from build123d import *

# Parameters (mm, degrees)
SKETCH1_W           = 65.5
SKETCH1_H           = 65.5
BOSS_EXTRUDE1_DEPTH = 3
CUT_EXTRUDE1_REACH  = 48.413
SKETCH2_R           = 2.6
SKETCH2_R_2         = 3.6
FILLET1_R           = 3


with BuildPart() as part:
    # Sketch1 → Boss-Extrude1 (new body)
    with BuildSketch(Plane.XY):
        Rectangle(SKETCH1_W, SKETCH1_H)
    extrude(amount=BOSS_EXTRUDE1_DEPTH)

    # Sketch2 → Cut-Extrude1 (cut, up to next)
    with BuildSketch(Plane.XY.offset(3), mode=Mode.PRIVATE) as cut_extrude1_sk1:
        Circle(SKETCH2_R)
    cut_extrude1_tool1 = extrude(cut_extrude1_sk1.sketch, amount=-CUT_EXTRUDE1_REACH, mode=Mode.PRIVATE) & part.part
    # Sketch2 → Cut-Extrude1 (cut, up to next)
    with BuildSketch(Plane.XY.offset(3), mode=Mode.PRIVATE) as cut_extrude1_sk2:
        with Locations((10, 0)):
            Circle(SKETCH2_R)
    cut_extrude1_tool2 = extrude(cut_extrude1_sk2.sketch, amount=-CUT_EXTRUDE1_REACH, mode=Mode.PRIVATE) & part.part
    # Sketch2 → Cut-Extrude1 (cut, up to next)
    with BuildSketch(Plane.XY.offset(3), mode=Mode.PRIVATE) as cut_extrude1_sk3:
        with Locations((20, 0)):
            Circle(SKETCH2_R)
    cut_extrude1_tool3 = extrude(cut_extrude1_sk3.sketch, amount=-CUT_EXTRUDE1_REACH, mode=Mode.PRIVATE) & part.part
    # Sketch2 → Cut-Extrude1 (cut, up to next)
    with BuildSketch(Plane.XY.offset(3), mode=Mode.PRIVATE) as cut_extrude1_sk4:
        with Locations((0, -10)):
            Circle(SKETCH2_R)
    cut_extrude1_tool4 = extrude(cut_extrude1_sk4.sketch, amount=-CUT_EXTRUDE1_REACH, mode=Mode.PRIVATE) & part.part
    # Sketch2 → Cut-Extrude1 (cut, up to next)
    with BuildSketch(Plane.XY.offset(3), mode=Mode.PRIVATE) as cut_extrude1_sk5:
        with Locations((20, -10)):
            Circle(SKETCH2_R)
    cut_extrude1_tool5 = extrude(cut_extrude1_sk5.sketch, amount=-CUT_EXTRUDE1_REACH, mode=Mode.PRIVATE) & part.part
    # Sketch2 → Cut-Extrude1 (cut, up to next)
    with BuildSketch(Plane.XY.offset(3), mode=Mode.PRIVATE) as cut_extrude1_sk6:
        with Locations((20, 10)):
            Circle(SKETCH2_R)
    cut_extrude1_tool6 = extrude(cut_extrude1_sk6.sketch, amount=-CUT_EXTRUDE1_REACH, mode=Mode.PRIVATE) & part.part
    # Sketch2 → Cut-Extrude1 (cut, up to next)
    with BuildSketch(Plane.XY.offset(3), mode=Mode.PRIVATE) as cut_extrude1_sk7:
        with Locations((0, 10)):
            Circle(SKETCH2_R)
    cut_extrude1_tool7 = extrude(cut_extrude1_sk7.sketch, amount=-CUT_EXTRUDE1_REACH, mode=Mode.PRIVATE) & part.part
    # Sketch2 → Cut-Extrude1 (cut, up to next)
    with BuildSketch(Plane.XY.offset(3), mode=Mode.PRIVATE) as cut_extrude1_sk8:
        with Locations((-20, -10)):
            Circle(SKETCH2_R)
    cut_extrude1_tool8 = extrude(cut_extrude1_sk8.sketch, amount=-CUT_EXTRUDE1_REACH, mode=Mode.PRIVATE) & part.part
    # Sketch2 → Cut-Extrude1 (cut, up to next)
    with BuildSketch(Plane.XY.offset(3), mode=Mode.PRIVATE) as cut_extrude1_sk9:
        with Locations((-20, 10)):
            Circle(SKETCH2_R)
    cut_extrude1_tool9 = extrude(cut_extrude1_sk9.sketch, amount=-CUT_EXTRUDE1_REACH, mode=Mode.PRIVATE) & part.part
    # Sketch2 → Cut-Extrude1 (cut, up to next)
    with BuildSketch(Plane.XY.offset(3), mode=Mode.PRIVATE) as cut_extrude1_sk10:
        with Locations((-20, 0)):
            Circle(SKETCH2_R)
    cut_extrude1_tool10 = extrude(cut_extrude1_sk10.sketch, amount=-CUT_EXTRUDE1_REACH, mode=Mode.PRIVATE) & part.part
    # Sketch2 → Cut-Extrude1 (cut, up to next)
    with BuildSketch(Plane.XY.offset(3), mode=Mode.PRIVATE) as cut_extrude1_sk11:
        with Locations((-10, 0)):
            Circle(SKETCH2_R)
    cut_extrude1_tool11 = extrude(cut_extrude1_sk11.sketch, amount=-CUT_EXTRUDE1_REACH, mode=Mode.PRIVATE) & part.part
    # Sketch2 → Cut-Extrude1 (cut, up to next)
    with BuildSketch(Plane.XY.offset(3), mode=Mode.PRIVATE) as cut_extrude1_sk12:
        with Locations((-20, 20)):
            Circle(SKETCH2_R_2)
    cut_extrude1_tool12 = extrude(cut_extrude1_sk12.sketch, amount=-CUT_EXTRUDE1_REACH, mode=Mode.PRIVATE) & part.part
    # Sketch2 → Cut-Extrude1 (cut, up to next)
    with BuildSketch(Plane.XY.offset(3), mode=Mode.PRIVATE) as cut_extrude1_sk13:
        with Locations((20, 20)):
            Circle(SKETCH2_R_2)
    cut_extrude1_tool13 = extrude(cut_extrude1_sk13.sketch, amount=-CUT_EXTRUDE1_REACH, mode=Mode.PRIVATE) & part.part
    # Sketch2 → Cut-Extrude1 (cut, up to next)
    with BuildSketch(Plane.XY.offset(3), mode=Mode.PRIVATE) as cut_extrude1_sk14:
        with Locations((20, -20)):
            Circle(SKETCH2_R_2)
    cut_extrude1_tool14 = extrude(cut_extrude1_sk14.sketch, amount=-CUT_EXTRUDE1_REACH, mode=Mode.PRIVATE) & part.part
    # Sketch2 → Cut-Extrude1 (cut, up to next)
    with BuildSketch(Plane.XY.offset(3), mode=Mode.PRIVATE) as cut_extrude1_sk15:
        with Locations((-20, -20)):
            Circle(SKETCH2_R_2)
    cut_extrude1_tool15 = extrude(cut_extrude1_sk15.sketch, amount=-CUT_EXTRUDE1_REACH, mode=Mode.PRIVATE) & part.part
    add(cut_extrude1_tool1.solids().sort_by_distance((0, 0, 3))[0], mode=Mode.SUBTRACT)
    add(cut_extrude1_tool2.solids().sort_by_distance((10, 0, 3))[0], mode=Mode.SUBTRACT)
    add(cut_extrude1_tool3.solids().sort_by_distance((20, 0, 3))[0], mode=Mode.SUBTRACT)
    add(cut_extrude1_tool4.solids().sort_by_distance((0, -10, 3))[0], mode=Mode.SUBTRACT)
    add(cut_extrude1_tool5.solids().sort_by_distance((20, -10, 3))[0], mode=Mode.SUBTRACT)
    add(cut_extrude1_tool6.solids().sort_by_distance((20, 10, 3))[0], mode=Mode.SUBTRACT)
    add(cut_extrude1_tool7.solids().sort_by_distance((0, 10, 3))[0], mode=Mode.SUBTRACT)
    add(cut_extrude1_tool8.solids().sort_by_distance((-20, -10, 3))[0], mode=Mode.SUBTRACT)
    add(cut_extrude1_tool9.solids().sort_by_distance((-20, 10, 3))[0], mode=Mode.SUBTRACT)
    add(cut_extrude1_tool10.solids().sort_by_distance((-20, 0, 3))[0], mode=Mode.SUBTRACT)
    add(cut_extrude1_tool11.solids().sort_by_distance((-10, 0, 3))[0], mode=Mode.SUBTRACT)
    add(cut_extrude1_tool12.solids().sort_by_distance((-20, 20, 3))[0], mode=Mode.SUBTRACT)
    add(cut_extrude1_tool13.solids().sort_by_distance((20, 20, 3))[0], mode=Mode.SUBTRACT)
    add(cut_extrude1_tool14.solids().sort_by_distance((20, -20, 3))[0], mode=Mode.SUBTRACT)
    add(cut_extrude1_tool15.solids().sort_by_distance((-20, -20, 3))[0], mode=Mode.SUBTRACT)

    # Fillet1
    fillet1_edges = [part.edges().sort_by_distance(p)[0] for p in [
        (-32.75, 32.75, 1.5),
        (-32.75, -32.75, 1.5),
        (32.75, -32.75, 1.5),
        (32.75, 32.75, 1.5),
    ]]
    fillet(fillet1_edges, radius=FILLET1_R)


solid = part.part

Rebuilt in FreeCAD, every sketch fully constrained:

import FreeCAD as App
import Part
import Sketcher
from FreeCAD import Vector
Q = App.Units.Quantity


def edges_at(feature, points):
    """Names of the edges that pass closest to the given points."""
    edges = feature.Shape.Edges
    near = lambda p: min(range(len(edges)), key=lambda i: edges[i].distToShape(Part.Vertex(*p))[0])
    return sorted({f"Edge{near(p) + 1}" for p in points})


def add_polygon(sketch, points):
    """Adds a closed chain of lines whose ends are joined by coincident constraints."""
    first, n = sketch.GeometryCount, len(points)
    for a, b in zip(points, points[1:] + points[:1]):
        sketch.addGeometry(Part.LineSegment(App.Vector(*a, 0), App.Vector(*b, 0)), False)
    for i in range(n):
        sketch.addConstraint(Sketcher.Constraint("Coincident", first + i, 2, first + (i + 1) % n, 1))

doc = App.newDocument("Part")
body = doc.addObject("PartDesign::Body", "Body")

# Sketch on XY plane
sketch1 = body.newObject("Sketcher::SketchObject", "Sketch")
sketch1.AttachmentSupport = (doc.getObject("XY_Plane"), [""])
sketch1.MapMode = "FlatFace"
add_polygon(sketch1, [(-33, 33), (-33, -33), (33, -33), (33, 33)])  # lines 0-3
sketch1.addConstraint(Sketcher.Constraint("Vertical", 0))
sketch1.addConstraint(Sketcher.Constraint("Horizontal", 1))
sketch1.addConstraint(Sketcher.Constraint("Vertical", 2))
sketch1.addConstraint(Sketcher.Constraint("Horizontal", 3))
sketch1.addConstraint(Sketcher.Constraint("Symmetric", 0, 2, 2, 2, -1, 1))
sketch1.addConstraint(Sketcher.Constraint("Equal", 3, 0))
sketch1.addConstraint(Sketcher.Constraint("DistanceX", 1, 1, 1, 2, Q("65.5 mm")))
pad1 = body.newObject("PartDesign::Pad", "Pad")
pad1.Profile = sketch1
pad1.Length = 3

# Sketch on XY plane
sketch2 = body.newObject("Sketcher::SketchObject", "Sketch001")
sketch2.AttachmentSupport = (doc.getObject("XY_Plane"), [""])
sketch2.MapMode = "FlatFace"
sketch2.AttachmentOffset = App.Placement(Vector(0, 0, 3), App.Rotation())
sketch2.addGeometry(Part.Circle(Vector(0, 0, 0), Vector(0, 0, 1), 2.6), False)
sketch2.addConstraint(Sketcher.Constraint("Coincident", 0, 3, -1, 1))
sketch2.addConstraint(Sketcher.Constraint("Diameter", 0, Q("5.2 mm")))
pocket1 = body.newObject("PartDesign::Pocket", "Pocket")
pocket1.Profile = sketch2
pocket1.Type = "UpToFirst"

# Sketch on XY plane
sketch3 = body.newObject("Sketcher::SketchObject", "Sketch002")
sketch3.AttachmentSupport = (doc.getObject("XY_Plane"), [""])
sketch3.MapMode = "FlatFace"
sketch3.AttachmentOffset = App.Placement(Vector(0, 0, 3), App.Rotation())
sketch3.addGeometry(Part.Circle(Vector(10, 0, 0), Vector(0, 0, 1), 2.6), False)
sketch3.addConstraint(Sketcher.Constraint("PointOnObject", 0, 3, -1))
sketch3.addConstraint(Sketcher.Constraint("Diameter", 0, Q("5.2 mm")))
sketch3.addConstraint(Sketcher.Constraint("DistanceX", -1, 1, 0, 3, Q("10 mm")))
pocket2 = body.newObject("PartDesign::Pocket", "Pocket001")
pocket2.Profile = sketch3
pocket2.Type = "UpToFirst"

# Sketch on XY plane
sketch4 = body.newObject("Sketcher::SketchObject", "Sketch003")
sketch4.AttachmentSupport = (doc.getObject("XY_Plane"), [""])
sketch4.MapMode = "FlatFace"
sketch4.AttachmentOffset = App.Placement(Vector(0, 0, 3), App.Rotation())
sketch4.addGeometry(Part.Circle(Vector(20, 0, 0), Vector(0, 0, 1), 2.6), False)
sketch4.addConstraint(Sketcher.Constraint("PointOnObject", 0, 3, -1))
sketch4.addConstraint(Sketcher.Constraint("Diameter", 0, Q("5.2 mm")))
sketch4.addConstraint(Sketcher.Constraint("DistanceX", -1, 1, 0, 3, Q("20 mm")))
pocket3 = body.newObject("PartDesign::Pocket", "Pocket002")
pocket3.Profile = sketch4
pocket3.Type = "UpToFirst"

# Sketch on XY plane
sketch5 = body.newObject("Sketcher::SketchObject", "Sketch004")
sketch5.AttachmentSupport = (doc.getObject("XY_Plane"), [""])
sketch5.MapMode = "FlatFace"
sketch5.AttachmentOffset = App.Placement(Vector(0, 0, 3), App.Rotation())
sketch5.addGeometry(Part.Circle(Vector(0, -10, 0), Vector(0, 0, 1), 2.6), False)
sketch5.addConstraint(Sketcher.Constraint("PointOnObject", 0, 3, -2))
sketch5.addConstraint(Sketcher.Constraint("Diameter", 0, Q("5.2 mm")))
sketch5.addConstraint(Sketcher.Constraint("DistanceY", 0, 3, -1, 1, Q("10 mm")))
pocket4 = body.newObject("PartDesign::Pocket", "Pocket003")
pocket4.Profile = sketch5
pocket4.Type = "UpToFirst"

# Sketch on XY plane
sketch6 = body.newObject("Sketcher::SketchObject", "Sketch005")
sketch6.AttachmentSupport = (doc.getObject("XY_Plane"), [""])
sketch6.MapMode = "FlatFace"
sketch6.AttachmentOffset = App.Placement(Vector(0, 0, 3), App.Rotation())
sketch6.addGeometry(Part.Circle(Vector(20, -10, 0), Vector(0, 0, 1), 2.6), False)
sketch6.addConstraint(Sketcher.Constraint("Diameter", 0, Q("5.2 mm")))
sketch6.addConstraint(Sketcher.Constraint("DistanceX", -1, 1, 0, 3, Q("20 mm")))
sketch6.addConstraint(Sketcher.Constraint("DistanceY", 0, 3, -1, 1, Q("10 mm")))
pocket5 = body.newObject("PartDesign::Pocket", "Pocket004")
pocket5.Profile = sketch6
pocket5.Type = "UpToFirst"

# Sketch on XY plane
sketch7 = body.newObject("Sketcher::SketchObject", "Sketch006")
sketch7.AttachmentSupport = (doc.getObject("XY_Plane"), [""])
sketch7.MapMode = "FlatFace"
sketch7.AttachmentOffset = App.Placement(Vector(0, 0, 3), App.Rotation())
sketch7.addGeometry(Part.Circle(Vector(20, 10, 0), Vector(0, 0, 1), 2.6), False)
sketch7.addConstraint(Sketcher.Constraint("Diameter", 0, Q("5.2 mm")))
sketch7.addConstraint(Sketcher.Constraint("DistanceX", -1, 1, 0, 3, Q("20 mm")))
sketch7.addConstraint(Sketcher.Constraint("DistanceY", -1, 1, 0, 3, Q("10 mm")))
pocket6 = body.newObject("PartDesign::Pocket", "Pocket005")
pocket6.Profile = sketch7
pocket6.Type = "UpToFirst"

# Sketch on XY plane
sketch8 = body.newObject("Sketcher::SketchObject", "Sketch007")
sketch8.AttachmentSupport = (doc.getObject("XY_Plane"), [""])
sketch8.MapMode = "FlatFace"
sketch8.AttachmentOffset = App.Placement(Vector(0, 0, 3), App.Rotation())
sketch8.addGeometry(Part.Circle(Vector(0, 10, 0), Vector(0, 0, 1), 2.6), False)
sketch8.addConstraint(Sketcher.Constraint("PointOnObject", 0, 3, -2))
sketch8.addConstraint(Sketcher.Constraint("Diameter", 0, Q("5.2 mm")))
sketch8.addConstraint(Sketcher.Constraint("DistanceY", -1, 1, 0, 3, Q("10 mm")))
pocket7 = body.newObject("PartDesign::Pocket", "Pocket006")
pocket7.Profile = sketch8
pocket7.Type = "UpToFirst"

# Sketch on XY plane
sketch9 = body.newObject("Sketcher::SketchObject", "Sketch008")
sketch9.AttachmentSupport = (doc.getObject("XY_Plane"), [""])
sketch9.MapMode = "FlatFace"
sketch9.AttachmentOffset = App.Placement(Vector(0, 0, 3), App.Rotation())
sketch9.addGeometry(Part.Circle(Vector(-20, -10, 0), Vector(0, 0, 1), 2.6), False)
sketch9.addConstraint(Sketcher.Constraint("Diameter", 0, Q("5.2 mm")))
sketch9.addConstraint(Sketcher.Constraint("DistanceX", 0, 3, -1, 1, Q("20 mm")))
sketch9.addConstraint(Sketcher.Constraint("DistanceY", 0, 3, -1, 1, Q("10 mm")))
pocket8 = body.newObject("PartDesign::Pocket", "Pocket007")
pocket8.Profile = sketch9
pocket8.Type = "UpToFirst"

# Sketch on XY plane
sketch10 = body.newObject("Sketcher::SketchObject", "Sketch009")
sketch10.AttachmentSupport = (doc.getObject("XY_Plane"), [""])
sketch10.MapMode = "FlatFace"
sketch10.AttachmentOffset = App.Placement(Vector(0, 0, 3), App.Rotation())
sketch10.addGeometry(Part.Circle(Vector(-20, 10, 0), Vector(0, 0, 1), 2.6), False)
sketch10.addConstraint(Sketcher.Constraint("Diameter", 0, Q("5.2 mm")))
sketch10.addConstraint(Sketcher.Constraint("DistanceX", 0, 3, -1, 1, Q("20 mm")))
sketch10.addConstraint(Sketcher.Constraint("DistanceY", -1, 1, 0, 3, Q("10 mm")))
pocket9 = body.newObject("PartDesign::Pocket", "Pocket008")
pocket9.Profile = sketch10
pocket9.Type = "UpToFirst"

# Sketch on XY plane
sketch11 = body.newObject("Sketcher::SketchObject", "Sketch010")
sketch11.AttachmentSupport = (doc.getObject("XY_Plane"), [""])
sketch11.MapMode = "FlatFace"
sketch11.AttachmentOffset = App.Placement(Vector(0, 0, 3), App.Rotation())
sketch11.addGeometry(Part.Circle(Vector(-20, 0, 0), Vector(0, 0, 1), 2.6), False)
sketch11.addConstraint(Sketcher.Constraint("PointOnObject", 0, 3, -1))
sketch11.addConstraint(Sketcher.Constraint("Diameter", 0, Q("5.2 mm")))
sketch11.addConstraint(Sketcher.Constraint("DistanceX", 0, 3, -1, 1, Q("20 mm")))
pocket10 = body.newObject("PartDesign::Pocket", "Pocket009")
pocket10.Profile = sketch11
pocket10.Type = "UpToFirst"

# Sketch on XY plane
sketch12 = body.newObject("Sketcher::SketchObject", "Sketch011")
sketch12.AttachmentSupport = (doc.getObject("XY_Plane"), [""])
sketch12.MapMode = "FlatFace"
sketch12.AttachmentOffset = App.Placement(Vector(0, 0, 3), App.Rotation())
sketch12.addGeometry(Part.Circle(Vector(-10, 0, 0), Vector(0, 0, 1), 2.6), False)
sketch12.addConstraint(Sketcher.Constraint("PointOnObject", 0, 3, -1))
sketch12.addConstraint(Sketcher.Constraint("Diameter", 0, Q("5.2 mm")))
sketch12.addConstraint(Sketcher.Constraint("DistanceX", 0, 3, -1, 1, Q("10 mm")))
pocket11 = body.newObject("PartDesign::Pocket", "Pocket010")
pocket11.Profile = sketch12
pocket11.Type = "UpToFirst"

# Sketch on XY plane
sketch13 = body.newObject("Sketcher::SketchObject", "Sketch012")
sketch13.AttachmentSupport = (doc.getObject("XY_Plane"), [""])
sketch13.MapMode = "FlatFace"
sketch13.AttachmentOffset = App.Placement(Vector(0, 0, 3), App.Rotation())
sketch13.addGeometry(Part.Circle(Vector(-20, 20, 0), Vector(0, 0, 1), 3.6), False)
sketch13.addConstraint(Sketcher.Constraint("Diameter", 0, Q("7.2 mm")))
sketch13.addConstraint(Sketcher.Constraint("DistanceX", 0, 3, -1, 1, Q("20 mm")))
sketch13.addConstraint(Sketcher.Constraint("DistanceY", -1, 1, 0, 3, Q("20 mm")))
pocket12 = body.newObject("PartDesign::Pocket", "Pocket011")
pocket12.Profile = sketch13
pocket12.Type = "UpToFirst"

# Sketch on XY plane
sketch14 = body.newObject("Sketcher::SketchObject", "Sketch013")
sketch14.AttachmentSupport = (doc.getObject("XY_Plane"), [""])
sketch14.MapMode = "FlatFace"
sketch14.AttachmentOffset = App.Placement(Vector(0, 0, 3), App.Rotation())
sketch14.addGeometry(Part.Circle(Vector(20, 20, 0), Vector(0, 0, 1), 3.6), False)
sketch14.addConstraint(Sketcher.Constraint("Diameter", 0, Q("7.2 mm")))
sketch14.addConstraint(Sketcher.Constraint("DistanceX", -1, 1, 0, 3, Q("20 mm")))
sketch14.addConstraint(Sketcher.Constraint("DistanceY", -1, 1, 0, 3, Q("20 mm")))
pocket13 = body.newObject("PartDesign::Pocket", "Pocket012")
pocket13.Profile = sketch14
pocket13.Type = "UpToFirst"

# Sketch on XY plane
sketch15 = body.newObject("Sketcher::SketchObject", "Sketch014")
sketch15.AttachmentSupport = (doc.getObject("XY_Plane"), [""])
sketch15.MapMode = "FlatFace"
sketch15.AttachmentOffset = App.Placement(Vector(0, 0, 3), App.Rotation())
sketch15.addGeometry(Part.Circle(Vector(20, -20, 0), Vector(0, 0, 1), 3.6), False)
sketch15.addConstraint(Sketcher.Constraint("Diameter", 0, Q("7.2 mm")))
sketch15.addConstraint(Sketcher.Constraint("DistanceX", -1, 1, 0, 3, Q("20 mm")))
sketch15.addConstraint(Sketcher.Constraint("DistanceY", 0, 3, -1, 1, Q("20 mm")))
pocket14 = body.newObject("PartDesign::Pocket", "Pocket013")
pocket14.Profile = sketch15
pocket14.Type = "UpToFirst"

# Sketch on XY plane
sketch16 = body.newObject("Sketcher::SketchObject", "Sketch015")
sketch16.AttachmentSupport = (doc.getObject("XY_Plane"), [""])
sketch16.MapMode = "FlatFace"
sketch16.AttachmentOffset = App.Placement(Vector(0, 0, 3), App.Rotation())
sketch16.addGeometry(Part.Circle(Vector(-20, -20, 0), Vector(0, 0, 1), 3.6), False)
sketch16.addConstraint(Sketcher.Constraint("Diameter", 0, Q("7.2 mm")))
sketch16.addConstraint(Sketcher.Constraint("DistanceX", 0, 3, -1, 1, Q("20 mm")))
sketch16.addConstraint(Sketcher.Constraint("DistanceY", 0, 3, -1, 1, Q("20 mm")))
pocket15 = body.newObject("PartDesign::Pocket", "Pocket014")
pocket15.Profile = sketch16
pocket15.Type = "UpToFirst"
doc.recompute()

fillet = body.newObject("PartDesign::Fillet", "Fillet")
fillet.Base = (pocket15, edges_at(pocket15, [
    (-32.75, 32.75, 1.5),
    (-32.75, -32.75, 1.5),
    (32.75, -32.75, 1.5),
    (32.75, 32.75, 1.5),
]))
fillet.Radius = 3

doc.recompute()
